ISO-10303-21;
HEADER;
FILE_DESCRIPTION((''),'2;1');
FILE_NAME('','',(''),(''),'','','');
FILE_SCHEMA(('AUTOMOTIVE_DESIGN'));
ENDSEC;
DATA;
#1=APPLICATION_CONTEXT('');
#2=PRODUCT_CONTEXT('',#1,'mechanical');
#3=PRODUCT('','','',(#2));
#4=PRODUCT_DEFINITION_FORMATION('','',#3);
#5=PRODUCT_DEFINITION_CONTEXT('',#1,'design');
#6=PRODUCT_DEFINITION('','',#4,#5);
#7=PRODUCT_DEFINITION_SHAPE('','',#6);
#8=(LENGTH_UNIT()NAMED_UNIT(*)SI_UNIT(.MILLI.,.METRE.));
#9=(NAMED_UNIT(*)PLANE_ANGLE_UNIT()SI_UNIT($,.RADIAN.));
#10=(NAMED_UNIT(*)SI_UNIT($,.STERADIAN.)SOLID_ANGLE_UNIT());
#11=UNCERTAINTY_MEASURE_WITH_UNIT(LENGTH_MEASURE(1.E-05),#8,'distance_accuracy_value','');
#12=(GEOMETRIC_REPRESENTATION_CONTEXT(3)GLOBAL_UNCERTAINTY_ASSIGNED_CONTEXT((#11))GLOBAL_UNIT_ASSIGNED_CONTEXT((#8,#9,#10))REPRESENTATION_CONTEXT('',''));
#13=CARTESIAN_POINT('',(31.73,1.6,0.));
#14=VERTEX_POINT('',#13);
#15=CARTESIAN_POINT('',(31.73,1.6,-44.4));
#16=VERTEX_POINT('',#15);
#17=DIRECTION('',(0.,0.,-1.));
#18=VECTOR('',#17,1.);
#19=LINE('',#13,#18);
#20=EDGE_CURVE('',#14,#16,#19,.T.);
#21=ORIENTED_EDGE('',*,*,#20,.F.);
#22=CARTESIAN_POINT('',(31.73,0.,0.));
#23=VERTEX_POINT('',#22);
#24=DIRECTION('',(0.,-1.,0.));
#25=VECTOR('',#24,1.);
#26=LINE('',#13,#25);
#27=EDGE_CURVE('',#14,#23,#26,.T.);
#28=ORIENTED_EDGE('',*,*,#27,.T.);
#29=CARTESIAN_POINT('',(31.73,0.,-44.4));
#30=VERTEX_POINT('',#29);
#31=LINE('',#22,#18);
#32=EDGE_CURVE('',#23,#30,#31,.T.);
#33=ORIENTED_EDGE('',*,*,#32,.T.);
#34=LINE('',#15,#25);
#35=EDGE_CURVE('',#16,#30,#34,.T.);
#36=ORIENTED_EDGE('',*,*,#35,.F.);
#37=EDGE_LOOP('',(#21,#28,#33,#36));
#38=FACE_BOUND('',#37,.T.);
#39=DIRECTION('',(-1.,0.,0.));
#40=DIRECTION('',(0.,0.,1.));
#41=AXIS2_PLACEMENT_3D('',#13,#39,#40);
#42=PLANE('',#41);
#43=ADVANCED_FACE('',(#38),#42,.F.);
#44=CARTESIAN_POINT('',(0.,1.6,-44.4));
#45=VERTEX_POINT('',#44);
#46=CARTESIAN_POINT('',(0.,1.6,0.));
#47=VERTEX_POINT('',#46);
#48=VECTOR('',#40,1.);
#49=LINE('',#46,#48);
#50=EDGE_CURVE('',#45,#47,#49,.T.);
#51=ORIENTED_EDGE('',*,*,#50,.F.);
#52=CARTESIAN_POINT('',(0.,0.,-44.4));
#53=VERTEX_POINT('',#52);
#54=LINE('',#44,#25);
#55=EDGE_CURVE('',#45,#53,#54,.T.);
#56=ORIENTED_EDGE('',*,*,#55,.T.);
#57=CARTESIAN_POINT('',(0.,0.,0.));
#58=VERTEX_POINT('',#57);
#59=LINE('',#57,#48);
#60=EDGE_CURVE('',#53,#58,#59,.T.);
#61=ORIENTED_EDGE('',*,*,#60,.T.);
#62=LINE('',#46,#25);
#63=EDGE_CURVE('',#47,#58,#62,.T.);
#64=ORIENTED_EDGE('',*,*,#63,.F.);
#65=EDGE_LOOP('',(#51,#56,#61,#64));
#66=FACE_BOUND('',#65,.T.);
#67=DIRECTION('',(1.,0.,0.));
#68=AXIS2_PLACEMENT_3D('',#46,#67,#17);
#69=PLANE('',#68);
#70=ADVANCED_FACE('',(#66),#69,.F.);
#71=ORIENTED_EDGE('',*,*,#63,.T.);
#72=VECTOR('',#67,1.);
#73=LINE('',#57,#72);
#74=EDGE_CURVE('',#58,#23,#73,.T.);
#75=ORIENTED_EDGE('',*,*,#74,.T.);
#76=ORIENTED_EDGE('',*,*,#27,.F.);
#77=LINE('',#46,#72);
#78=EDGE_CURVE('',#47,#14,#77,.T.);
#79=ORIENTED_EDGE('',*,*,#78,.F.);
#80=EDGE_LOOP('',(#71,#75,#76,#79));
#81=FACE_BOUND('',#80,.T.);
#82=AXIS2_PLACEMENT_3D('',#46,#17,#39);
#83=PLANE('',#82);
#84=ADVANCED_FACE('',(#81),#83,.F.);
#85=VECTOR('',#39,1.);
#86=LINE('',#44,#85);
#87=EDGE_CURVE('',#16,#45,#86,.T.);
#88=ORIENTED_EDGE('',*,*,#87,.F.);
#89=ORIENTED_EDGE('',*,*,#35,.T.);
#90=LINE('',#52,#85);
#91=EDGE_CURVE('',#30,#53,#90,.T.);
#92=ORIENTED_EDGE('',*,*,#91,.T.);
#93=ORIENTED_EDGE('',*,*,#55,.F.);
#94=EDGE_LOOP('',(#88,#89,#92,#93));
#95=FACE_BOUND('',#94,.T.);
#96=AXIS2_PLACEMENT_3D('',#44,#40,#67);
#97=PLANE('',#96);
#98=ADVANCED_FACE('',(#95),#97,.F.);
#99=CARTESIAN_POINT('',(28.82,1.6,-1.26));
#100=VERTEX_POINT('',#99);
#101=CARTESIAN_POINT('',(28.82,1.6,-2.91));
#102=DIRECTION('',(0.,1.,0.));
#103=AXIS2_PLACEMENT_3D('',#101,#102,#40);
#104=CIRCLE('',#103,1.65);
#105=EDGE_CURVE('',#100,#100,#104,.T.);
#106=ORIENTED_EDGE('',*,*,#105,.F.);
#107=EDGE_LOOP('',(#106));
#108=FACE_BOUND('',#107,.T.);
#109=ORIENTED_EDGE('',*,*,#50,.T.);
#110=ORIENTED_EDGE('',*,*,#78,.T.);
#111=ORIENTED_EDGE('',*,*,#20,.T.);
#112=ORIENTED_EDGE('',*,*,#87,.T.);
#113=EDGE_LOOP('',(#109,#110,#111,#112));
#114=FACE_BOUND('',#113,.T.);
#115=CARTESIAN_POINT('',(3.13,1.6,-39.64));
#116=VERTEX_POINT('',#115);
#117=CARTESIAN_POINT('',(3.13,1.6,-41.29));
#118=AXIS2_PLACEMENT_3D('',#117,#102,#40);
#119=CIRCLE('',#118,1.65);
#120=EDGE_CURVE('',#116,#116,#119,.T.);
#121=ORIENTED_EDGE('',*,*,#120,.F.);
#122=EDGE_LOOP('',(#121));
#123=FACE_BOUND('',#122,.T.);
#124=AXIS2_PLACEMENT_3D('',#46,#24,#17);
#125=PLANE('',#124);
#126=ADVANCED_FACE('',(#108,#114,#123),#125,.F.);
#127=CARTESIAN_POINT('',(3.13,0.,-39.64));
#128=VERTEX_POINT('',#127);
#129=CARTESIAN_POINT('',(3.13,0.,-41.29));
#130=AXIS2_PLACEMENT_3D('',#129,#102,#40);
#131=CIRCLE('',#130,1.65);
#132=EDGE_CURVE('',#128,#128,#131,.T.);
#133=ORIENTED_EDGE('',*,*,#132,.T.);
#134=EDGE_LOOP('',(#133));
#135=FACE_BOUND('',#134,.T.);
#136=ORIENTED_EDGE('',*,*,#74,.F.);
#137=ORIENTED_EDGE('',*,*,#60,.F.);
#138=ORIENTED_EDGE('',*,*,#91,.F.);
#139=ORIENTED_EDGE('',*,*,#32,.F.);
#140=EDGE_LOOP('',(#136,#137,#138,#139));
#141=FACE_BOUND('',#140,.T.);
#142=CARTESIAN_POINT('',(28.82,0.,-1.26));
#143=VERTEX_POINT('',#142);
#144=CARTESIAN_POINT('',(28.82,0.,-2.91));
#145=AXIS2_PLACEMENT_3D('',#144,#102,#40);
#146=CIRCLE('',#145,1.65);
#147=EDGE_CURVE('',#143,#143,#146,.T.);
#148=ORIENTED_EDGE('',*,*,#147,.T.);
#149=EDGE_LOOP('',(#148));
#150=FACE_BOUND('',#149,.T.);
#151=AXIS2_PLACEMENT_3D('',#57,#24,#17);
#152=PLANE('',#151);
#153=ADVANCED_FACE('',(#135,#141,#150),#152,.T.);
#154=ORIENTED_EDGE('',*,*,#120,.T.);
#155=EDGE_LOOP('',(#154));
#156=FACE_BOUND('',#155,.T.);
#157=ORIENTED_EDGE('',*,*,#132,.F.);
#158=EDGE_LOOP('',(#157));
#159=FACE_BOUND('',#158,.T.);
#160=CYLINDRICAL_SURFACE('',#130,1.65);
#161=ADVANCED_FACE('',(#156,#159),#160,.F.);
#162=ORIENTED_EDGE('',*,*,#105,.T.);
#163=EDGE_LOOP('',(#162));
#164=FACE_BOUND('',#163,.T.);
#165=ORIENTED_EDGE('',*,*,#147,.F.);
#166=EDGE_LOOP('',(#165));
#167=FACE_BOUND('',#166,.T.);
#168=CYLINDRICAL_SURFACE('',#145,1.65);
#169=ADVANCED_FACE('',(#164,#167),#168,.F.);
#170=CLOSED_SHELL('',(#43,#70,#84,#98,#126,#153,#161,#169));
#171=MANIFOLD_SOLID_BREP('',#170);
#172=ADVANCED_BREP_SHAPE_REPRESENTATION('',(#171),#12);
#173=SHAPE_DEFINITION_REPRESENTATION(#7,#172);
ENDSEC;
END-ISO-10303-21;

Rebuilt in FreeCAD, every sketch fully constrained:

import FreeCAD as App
import Part
import Sketcher

V = App.Vector


def add_polygon(sketch, points):
    """Adds a closed chain of lines whose ends are joined by coincident constraints."""
    first, n = sketch.GeometryCount, len(points)
    for a, b in zip(points, points[1:] + points[:1]):
        sketch.addGeometry(Part.LineSegment(App.Vector(*a, 0), App.Vector(*b, 0)), False)
    for i in range(n):
        sketch.addConstraint(Sketcher.Constraint("Coincident", first + i, 2, first + (i + 1) % n, 1))

doc = App.newDocument("Part")
params = doc.addObject("Spreadsheet::Sheet", "Params")
for row, (alias, value) in enumerate([
    ("sketch1_height", "44.4 mm"),
    ("sketch1_width", "31.73 mm"),
    ("pad1_length", "1.6 mm"),
    ("sketch2_diameter", "3.3 mm"),
], start=1):
    params.set(f"A{row}", alias)
    params.set(f"B{row}", "=" + value)
    params.setAlias(f"B{row}", alias)

body = doc.addObject("PartDesign::Body", "Body")

# Sketch on XZ plane
sketch1 = body.newObject("Sketcher::SketchObject", "Sketch")
sketch1.AttachmentSupport = (doc.getObject("XZ_Plane"), [""])
sketch1.MapMode = "FlatFace"
add_polygon(sketch1, [(0, -44.4), (0, 0), (31.73, 0), (31.73, -44.4)])  # lines 0-3
sketch1.addConstraint([
    Sketcher.Constraint("Vertical", 0),
    Sketcher.Constraint("Horizontal", 1),
    Sketcher.Constraint("Vertical", 2),
    Sketcher.Constraint("Horizontal", 3),
    Sketcher.Constraint("Coincident", 0, 2, -1, 1),
    Sketcher.Constraint("DistanceY", 0, 1, 0, 2, 44.4),
    Sketcher.Constraint("DistanceX", 1, 1, 1, 2, 31.73),
])
sketch1.setExpression("Constraints[9]", "Params.sketch1_height")
sketch1.setExpression("Constraints[10]", "Params.sketch1_width")
pad1 = body.newObject("PartDesign::Pad", "Pad")
pad1.Profile = sketch1
pad1.setExpression("Length", "Params.pad1_length")
pad1.Reversed = True

# Sketch on XZ plane
sketch2 = body.newObject("Sketcher::SketchObject", "Sketch001")
sketch2.AttachmentSupport = (doc.getObject("XZ_Plane"), [""])
sketch2.MapMode = "FlatFace"
sketch2.AttachmentOffset = App.Placement(V(0, 0, -1.6), App.Rotation())
sketch2.addGeometry([
    Part.Circle(V(3.13, -41.29, 0), V(0, 0, 1), 1.65),
    Part.Circle(V(28.82, -2.91, 0), V(0, 0, 1), 1.65),
], False)
sketch2.addConstraint([
    Sketcher.Constraint("Equal", 0, 1),
    Sketcher.Constraint("Diameter", 0, 3.3),
    Sketcher.Constraint("DistanceX", -1, 1, 0, 3, 3.13),
    Sketcher.Constraint("DistanceY", 0, 3, -1, 1, 41.29),
    Sketcher.Constraint("DistanceX", -1, 1, 1, 3, 28.82),
    Sketcher.Constraint("DistanceY", 1, 3, -1, 1, 2.91),
])
sketch2.setExpression("Constraints[1]", "Params.sketch2_diameter")
pocket1 = body.newObject("PartDesign::Pocket", "Pocket")
pocket1.Profile = sketch2
pocket1.Type = "ThroughAll"
pocket1.Reversed = True

doc.recompute()
